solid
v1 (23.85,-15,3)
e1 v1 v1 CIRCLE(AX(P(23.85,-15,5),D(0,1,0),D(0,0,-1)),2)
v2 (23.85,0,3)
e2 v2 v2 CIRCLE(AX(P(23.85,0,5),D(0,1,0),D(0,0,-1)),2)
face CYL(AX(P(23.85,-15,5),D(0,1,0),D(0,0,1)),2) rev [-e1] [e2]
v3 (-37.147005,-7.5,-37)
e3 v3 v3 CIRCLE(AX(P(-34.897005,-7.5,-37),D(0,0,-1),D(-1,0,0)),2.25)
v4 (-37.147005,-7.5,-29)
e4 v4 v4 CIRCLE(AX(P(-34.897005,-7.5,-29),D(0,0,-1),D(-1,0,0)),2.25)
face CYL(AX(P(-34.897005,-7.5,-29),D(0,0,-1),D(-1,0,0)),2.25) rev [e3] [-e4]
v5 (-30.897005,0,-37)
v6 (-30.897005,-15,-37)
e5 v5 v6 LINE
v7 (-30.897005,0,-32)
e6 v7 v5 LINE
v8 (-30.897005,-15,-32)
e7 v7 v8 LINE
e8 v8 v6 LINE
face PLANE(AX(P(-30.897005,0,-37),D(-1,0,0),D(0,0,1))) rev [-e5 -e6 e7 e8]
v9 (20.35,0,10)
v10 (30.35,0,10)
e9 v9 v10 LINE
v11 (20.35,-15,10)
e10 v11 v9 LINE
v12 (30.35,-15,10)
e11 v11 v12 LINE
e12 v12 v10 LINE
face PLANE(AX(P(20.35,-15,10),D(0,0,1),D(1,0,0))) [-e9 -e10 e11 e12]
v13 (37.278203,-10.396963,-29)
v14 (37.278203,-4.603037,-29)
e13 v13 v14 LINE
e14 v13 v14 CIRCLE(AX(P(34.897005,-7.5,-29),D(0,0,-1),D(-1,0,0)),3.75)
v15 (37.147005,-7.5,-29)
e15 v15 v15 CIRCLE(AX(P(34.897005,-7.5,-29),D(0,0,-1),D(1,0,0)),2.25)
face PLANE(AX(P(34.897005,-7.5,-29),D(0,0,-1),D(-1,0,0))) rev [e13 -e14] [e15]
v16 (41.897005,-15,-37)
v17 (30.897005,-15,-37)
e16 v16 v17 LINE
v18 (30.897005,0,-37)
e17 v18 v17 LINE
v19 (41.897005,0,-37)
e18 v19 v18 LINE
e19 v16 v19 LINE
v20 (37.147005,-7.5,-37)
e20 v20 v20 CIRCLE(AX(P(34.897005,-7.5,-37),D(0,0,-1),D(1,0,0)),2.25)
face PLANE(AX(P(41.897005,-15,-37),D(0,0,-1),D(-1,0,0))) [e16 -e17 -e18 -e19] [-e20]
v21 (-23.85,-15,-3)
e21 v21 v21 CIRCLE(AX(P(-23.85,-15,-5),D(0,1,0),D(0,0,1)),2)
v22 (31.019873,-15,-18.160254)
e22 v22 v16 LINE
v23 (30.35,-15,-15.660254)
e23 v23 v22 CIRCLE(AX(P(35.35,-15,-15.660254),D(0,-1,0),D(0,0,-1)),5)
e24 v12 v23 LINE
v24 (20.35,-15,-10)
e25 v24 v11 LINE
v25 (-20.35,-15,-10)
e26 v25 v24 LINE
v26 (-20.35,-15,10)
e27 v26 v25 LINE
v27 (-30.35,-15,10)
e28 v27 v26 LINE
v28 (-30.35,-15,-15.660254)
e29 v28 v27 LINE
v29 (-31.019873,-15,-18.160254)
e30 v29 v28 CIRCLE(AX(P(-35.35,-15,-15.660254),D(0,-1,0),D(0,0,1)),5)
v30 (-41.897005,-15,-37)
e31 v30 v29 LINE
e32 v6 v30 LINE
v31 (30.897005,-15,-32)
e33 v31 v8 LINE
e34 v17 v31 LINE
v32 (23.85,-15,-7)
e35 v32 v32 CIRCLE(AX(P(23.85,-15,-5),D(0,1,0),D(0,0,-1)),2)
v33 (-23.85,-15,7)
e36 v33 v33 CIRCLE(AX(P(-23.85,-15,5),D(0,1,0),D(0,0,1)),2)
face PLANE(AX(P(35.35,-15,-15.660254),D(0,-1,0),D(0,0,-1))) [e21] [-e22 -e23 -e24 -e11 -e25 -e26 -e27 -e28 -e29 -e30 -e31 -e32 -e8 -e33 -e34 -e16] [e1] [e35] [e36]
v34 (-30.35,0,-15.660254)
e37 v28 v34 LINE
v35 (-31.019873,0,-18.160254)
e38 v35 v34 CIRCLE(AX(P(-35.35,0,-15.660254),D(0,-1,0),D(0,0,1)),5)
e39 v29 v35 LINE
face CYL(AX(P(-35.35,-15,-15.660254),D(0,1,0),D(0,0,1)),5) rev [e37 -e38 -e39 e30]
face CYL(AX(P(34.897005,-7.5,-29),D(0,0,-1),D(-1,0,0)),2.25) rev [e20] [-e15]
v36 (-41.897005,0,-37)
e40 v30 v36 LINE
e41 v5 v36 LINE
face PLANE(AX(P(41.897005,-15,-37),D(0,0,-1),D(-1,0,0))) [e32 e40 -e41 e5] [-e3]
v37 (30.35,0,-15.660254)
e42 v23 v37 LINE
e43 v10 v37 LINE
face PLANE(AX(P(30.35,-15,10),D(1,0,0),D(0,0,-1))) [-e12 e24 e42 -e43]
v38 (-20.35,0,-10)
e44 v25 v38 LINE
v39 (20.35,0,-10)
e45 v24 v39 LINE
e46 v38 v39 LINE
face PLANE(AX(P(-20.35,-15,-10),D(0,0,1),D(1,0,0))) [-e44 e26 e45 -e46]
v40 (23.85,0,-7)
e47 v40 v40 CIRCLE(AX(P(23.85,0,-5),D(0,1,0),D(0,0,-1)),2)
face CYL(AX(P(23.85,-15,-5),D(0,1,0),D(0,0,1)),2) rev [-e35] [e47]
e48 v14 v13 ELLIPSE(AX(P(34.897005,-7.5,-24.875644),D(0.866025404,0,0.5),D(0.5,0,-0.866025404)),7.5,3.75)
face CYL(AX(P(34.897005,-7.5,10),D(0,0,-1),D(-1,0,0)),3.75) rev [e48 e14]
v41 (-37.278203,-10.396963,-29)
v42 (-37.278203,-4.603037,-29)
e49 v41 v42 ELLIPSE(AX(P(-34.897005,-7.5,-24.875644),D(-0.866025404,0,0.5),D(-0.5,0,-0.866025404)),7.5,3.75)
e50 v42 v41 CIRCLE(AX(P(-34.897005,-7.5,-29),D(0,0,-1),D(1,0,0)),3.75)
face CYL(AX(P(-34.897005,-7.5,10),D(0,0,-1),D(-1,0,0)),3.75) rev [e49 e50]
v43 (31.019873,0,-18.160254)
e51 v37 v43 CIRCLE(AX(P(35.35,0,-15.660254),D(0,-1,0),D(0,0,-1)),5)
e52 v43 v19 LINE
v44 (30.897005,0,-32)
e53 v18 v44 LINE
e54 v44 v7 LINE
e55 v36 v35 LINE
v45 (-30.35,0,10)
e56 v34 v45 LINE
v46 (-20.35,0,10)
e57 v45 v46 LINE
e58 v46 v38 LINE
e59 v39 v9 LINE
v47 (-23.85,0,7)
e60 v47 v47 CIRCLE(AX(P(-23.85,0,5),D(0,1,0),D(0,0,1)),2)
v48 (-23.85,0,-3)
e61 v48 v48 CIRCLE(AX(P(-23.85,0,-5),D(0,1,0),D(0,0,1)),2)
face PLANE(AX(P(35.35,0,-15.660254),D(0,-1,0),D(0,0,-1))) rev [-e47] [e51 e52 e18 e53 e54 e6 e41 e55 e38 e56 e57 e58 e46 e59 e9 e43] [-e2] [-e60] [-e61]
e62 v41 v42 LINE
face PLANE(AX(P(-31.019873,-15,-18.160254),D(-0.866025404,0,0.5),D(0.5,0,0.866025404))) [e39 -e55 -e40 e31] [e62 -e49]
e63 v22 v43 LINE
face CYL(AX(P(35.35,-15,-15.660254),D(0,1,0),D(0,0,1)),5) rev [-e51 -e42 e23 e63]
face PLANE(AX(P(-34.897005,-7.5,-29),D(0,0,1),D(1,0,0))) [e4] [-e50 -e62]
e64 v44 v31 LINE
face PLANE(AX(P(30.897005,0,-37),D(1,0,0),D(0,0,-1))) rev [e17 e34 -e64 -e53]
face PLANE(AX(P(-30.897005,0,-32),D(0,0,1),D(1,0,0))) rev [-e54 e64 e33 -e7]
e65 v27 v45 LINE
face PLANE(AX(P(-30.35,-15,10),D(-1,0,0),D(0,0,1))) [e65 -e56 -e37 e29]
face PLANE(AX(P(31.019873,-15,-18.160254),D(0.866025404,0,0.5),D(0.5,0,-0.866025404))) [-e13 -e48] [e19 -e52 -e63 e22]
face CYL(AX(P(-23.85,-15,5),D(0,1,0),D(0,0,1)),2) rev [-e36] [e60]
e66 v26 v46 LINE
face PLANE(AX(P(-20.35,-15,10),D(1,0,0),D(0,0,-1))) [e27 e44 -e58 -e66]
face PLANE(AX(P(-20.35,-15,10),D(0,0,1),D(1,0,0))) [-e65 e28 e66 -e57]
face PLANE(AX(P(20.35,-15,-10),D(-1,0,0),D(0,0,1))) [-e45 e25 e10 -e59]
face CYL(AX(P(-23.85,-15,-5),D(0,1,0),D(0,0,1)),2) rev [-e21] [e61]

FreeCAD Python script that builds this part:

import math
import FreeCAD as App
import Part
import Sketcher

V = App.Vector
Q = App.Units.Quantity

doc = App.newDocument("Part")
body = doc.addObject("PartDesign::Body", "Body")

# Sketch on XZ plane
sketch1 = doc.addObject("Sketcher::SketchObject", "Sketch")
body.addObject(sketch1)
sketch1.AttachmentSupport = (doc.XZ_Plane, [""])
sketch1.MapMode = "FlatFace"
sketch1.addGeometry([
    Part.LineSegment(V(-20.4, 10, 0), V(-20.4, -10, 0)),  # 0
    Part.LineSegment(V(-20.4, -10, 0), V(20.4, -10, 0)),  # 1
    Part.LineSegment(V(20.4, -10, 0), V(20.4, 10, 0)),  # 2
    Part.LineSegment(V(20.4, 10, 0), V(30.4, 10, 0)),  # 3
    Part.LineSegment(V(30.4, 10, 0), V(30.4, -15.7, 0)),  # 4
    Part.ArcOfCircle(Part.Circle(V(35.4, -15.7, 0), V(0, 0, 1), 5), math.radians(-180), math.radians(-150)),  # 5
    Part.LineSegment(V(31, -18.2, 0), V(41.9, -37, 0)),  # 6
    Part.LineSegment(V(41.9, -37, 0), V(-41.9, -37, 0)),  # 7
    Part.LineSegment(V(-41.9, -37, 0), V(-31, -18.2, 0)),  # 8
    Part.ArcOfCircle(Part.Circle(V(-35.4, -15.7, 0), V(0, 0, 1), 5), math.radians(-30), math.radians(0)),  # 9
    Part.LineSegment(V(-30.4, -15.7, 0), V(-30.4, 10, 0)),  # 10
    Part.LineSegment(V(-30.4, 10, 0), V(-20.4, 10, 0)),  # 11
    Part.Circle(V(23.9, -5, 0), V(0, 0, 1), 2),  # 12
    Part.Circle(V(-23.9, -5, 0), V(0, 0, 1), 2),  # 13
    Part.Circle(V(23.9, 5, 0), V(0, 0, 1), 2),  # 14
    Part.Circle(V(-23.9, 5, 0), V(0, 0, 1), 2),  # 15
], False)
sketch1.addConstraint([
    Sketcher.Constraint("Coincident", 0, 2, 1, 1),
    Sketcher.Constraint("Coincident", 1, 2, 2, 1),
    Sketcher.Constraint("Coincident", 2, 2, 3, 1),
    Sketcher.Constraint("Coincident", 3, 2, 4, 1),
    Sketcher.Constraint("Tangent", 4, 2, 5, 1),
    Sketcher.Constraint("Tangent", 5, 2, 6, 1),
    Sketcher.Constraint("Coincident", 6, 2, 7, 1),
    Sketcher.Constraint("Coincident", 7, 2, 8, 1),
    Sketcher.Constraint("Tangent", 8, 2, 9, 1),
    Sketcher.Constraint("Tangent", 9, 2, 10, 1),
    Sketcher.Constraint("Coincident", 10, 2, 11, 1),
    Sketcher.Constraint("Coincident", 11, 2, 0, 1),
    Sketcher.Constraint("Vertical", 0),
    Sketcher.Constraint("Horizontal", 1),
    Sketcher.Constraint("Vertical", 2),
    Sketcher.Constraint("Horizontal", 3),
    Sketcher.Constraint("Vertical", 4),
    Sketcher.Constraint("Horizontal", 7),
    Sketcher.Constraint("Vertical", 10),
    Sketcher.Constraint("Horizontal", 11),
    Sketcher.Constraint("Equal", 5, 9),
    Sketcher.Constraint("Equal", 12, 13),
    Sketcher.Constraint("Equal", 13, 14),
    Sketcher.Constraint("Equal", 14, 15),
    Sketcher.Constraint("Symmetric", 13, 3, 14, 3, -1, 1),
    Sketcher.Constraint("Symmetric", 12, 3, 15, 3, -1, 1),
    Sketcher.Constraint("Symmetric", 0, 2, 2, 2, -1, 1),
    Sketcher.Constraint("Symmetric", 5, 3, 9, 3, -2),
    Sketcher.Constraint("Symmetric", 12, 3, 13, 3, -2),
    Sketcher.Constraint("Horizontal", 5, 2, 8, 2),
    Sketcher.Constraint("Horizontal", 3, 2, 10, 2),
    Sketcher.Constraint("Diameter", 12, 4.0),
    Sketcher.Constraint("Radius", 5, 5.0),
    Sketcher.Constraint("DistanceX", 3, 1, 3, 2, 10.0),
    Sketcher.Constraint("DistanceY", 0, 2, 0, 1, 20.0),
    Sketcher.Constraint("Angle", 6, Q("-60 deg")),
    Sketcher.Constraint("DistanceX", 1, 1, 1, 2, 40.7),
    Sketcher.Constraint("DistanceY", 12, 3, -1, 1, 5.0),
    Sketcher.Constraint("DistanceY", 6, 2, -1, 1, 37.0),
    Sketcher.Constraint("DistanceX", 12, 3, 5, 3, 11.5),
    Sketcher.Constraint("DistanceX", 7, 2, 7, 1, 83.794011),
])
pad1 = doc.addObject("PartDesign::Pad", "Pad")
body.addObject(pad1)
pad1.Profile = sketch1
pad1.Length = 15

# Sketch on XY plane
sketch2 = doc.addObject("Sketcher::SketchObject", "Sketch001")
body.addObject(sketch2)
sketch2.AttachmentSupport = (doc.XY_Plane, [""])
sketch2.MapMode = "FlatFace"
sketch2.AttachmentOffset = App.Placement(V(0, 0, -37), App.Rotation())
sketch2.addGeometry([
    Part.Circle(V(-34.9, -7.5, 0), V(0, 0, 1), 2.2),
    Part.Circle(V(34.9, -7.5, 0), V(0, 0, 1), 2.2),
], False)
sketch2.addConstraint([
    Sketcher.Constraint("Equal", 0, 1),
    Sketcher.Constraint("Symmetric", 0, 3, 1, 3, -2),
    Sketcher.Constraint("Diameter", 0, 4.5),
    Sketcher.Constraint("DistanceY", 0, 3, -1, 1, 7.5),
    Sketcher.Constraint("DistanceX", 0, 3, 1, 3, 69.794011),
])
pocket1 = doc.addObject("PartDesign::Pocket", "Pocket")
body.addObject(pocket1)
pocket1.Profile = sketch2
pocket1.Length = 8
pocket1.Reversed = True

# Sketch on XY plane
sketch3 = doc.addObject("Sketcher::SketchObject", "Sketch002")
body.addObject(sketch3)
sketch3.AttachmentSupport = (doc.XY_Plane, [""])
sketch3.MapMode = "FlatFace"
sketch3.AttachmentOffset = App.Placement(V(0, 0, -29), App.Rotation())
sketch3.addGeometry([
    Part.Circle(V(34.9, -7.5, 0), V(0, 0, 1), 3.8),
    Part.Circle(V(-34.9, -7.5, 0), V(0, 0, 1), 3.8),
], False)
sketch3.addConstraint([
    Sketcher.Constraint("Equal", 0, 1),
    Sketcher.Constraint("Symmetric", 0, 3, 1, 3, -2),
    Sketcher.Constraint("Diameter", 0, 7.5),
    Sketcher.Constraint("DistanceY", 0, 3, -1, 1, 7.5),
    Sketcher.Constraint("DistanceX", 1, 3, 0, 3, 69.794011),
])
pocket2 = doc.addObject("PartDesign::Pocket", "Pocket001")
body.addObject(pocket2)
pocket2.Profile = sketch3
pocket2.Type = "ThroughAll"
pocket2.Reversed = True

# Sketch on XZ plane
sketch4 = doc.addObject("Sketcher::SketchObject", "Sketch003")
body.addObject(sketch4)
sketch4.AttachmentSupport = (doc.XZ_Plane, [""])
sketch4.MapMode = "FlatFace"
sketch4.AttachmentOffset = App.Placement(V(0, 0, 15), App.Rotation())
sketch4.addGeometry([
    Part.LineSegment(V(-31, -32, 0), V(-31, -37, 0)),
    Part.LineSegment(V(-31, -37, 0), V(31, -37, 0)),
    Part.LineSegment(V(31, -37, 0), V(31, -32, 0)),
    Part.LineSegment(V(31, -32, 0), V(-31, -32, 0)),
], False)
sketch4.addConstraint([
    Sketcher.Constraint("Coincident", 0, 2, 1, 1),
    Sketcher.Constraint("Coincident", 1, 2, 2, 1),
    Sketcher.Constraint("Coincident", 2, 2, 3, 1),
    Sketcher.Constraint("Coincident", 3, 2, 0, 1),
    Sketcher.Constraint("Vertical", 0),
    Sketcher.Constraint("Horizontal", 1),
    Sketcher.Constraint("Vertical", 2),
    Sketcher.Constraint("Horizontal", 3),
    Sketcher.Constraint("DistanceY", 0, 2, 0, 1, 5.0),
    Sketcher.Constraint("DistanceY", 0, 2, -1, 1, 37.0),
    Sketcher.Constraint("DistanceX", 1, 1, 1, 2, 61.794011),
    Sketcher.Constraint("DistanceX", 0, 2, -1, 1, 30.897005),
])
pocket3 = doc.addObject("PartDesign::Pocket", "Pocket002")
body.addObject(pocket3)
pocket3.Profile = sketch4
pocket3.Type = "ThroughAll"

doc.recompute()
